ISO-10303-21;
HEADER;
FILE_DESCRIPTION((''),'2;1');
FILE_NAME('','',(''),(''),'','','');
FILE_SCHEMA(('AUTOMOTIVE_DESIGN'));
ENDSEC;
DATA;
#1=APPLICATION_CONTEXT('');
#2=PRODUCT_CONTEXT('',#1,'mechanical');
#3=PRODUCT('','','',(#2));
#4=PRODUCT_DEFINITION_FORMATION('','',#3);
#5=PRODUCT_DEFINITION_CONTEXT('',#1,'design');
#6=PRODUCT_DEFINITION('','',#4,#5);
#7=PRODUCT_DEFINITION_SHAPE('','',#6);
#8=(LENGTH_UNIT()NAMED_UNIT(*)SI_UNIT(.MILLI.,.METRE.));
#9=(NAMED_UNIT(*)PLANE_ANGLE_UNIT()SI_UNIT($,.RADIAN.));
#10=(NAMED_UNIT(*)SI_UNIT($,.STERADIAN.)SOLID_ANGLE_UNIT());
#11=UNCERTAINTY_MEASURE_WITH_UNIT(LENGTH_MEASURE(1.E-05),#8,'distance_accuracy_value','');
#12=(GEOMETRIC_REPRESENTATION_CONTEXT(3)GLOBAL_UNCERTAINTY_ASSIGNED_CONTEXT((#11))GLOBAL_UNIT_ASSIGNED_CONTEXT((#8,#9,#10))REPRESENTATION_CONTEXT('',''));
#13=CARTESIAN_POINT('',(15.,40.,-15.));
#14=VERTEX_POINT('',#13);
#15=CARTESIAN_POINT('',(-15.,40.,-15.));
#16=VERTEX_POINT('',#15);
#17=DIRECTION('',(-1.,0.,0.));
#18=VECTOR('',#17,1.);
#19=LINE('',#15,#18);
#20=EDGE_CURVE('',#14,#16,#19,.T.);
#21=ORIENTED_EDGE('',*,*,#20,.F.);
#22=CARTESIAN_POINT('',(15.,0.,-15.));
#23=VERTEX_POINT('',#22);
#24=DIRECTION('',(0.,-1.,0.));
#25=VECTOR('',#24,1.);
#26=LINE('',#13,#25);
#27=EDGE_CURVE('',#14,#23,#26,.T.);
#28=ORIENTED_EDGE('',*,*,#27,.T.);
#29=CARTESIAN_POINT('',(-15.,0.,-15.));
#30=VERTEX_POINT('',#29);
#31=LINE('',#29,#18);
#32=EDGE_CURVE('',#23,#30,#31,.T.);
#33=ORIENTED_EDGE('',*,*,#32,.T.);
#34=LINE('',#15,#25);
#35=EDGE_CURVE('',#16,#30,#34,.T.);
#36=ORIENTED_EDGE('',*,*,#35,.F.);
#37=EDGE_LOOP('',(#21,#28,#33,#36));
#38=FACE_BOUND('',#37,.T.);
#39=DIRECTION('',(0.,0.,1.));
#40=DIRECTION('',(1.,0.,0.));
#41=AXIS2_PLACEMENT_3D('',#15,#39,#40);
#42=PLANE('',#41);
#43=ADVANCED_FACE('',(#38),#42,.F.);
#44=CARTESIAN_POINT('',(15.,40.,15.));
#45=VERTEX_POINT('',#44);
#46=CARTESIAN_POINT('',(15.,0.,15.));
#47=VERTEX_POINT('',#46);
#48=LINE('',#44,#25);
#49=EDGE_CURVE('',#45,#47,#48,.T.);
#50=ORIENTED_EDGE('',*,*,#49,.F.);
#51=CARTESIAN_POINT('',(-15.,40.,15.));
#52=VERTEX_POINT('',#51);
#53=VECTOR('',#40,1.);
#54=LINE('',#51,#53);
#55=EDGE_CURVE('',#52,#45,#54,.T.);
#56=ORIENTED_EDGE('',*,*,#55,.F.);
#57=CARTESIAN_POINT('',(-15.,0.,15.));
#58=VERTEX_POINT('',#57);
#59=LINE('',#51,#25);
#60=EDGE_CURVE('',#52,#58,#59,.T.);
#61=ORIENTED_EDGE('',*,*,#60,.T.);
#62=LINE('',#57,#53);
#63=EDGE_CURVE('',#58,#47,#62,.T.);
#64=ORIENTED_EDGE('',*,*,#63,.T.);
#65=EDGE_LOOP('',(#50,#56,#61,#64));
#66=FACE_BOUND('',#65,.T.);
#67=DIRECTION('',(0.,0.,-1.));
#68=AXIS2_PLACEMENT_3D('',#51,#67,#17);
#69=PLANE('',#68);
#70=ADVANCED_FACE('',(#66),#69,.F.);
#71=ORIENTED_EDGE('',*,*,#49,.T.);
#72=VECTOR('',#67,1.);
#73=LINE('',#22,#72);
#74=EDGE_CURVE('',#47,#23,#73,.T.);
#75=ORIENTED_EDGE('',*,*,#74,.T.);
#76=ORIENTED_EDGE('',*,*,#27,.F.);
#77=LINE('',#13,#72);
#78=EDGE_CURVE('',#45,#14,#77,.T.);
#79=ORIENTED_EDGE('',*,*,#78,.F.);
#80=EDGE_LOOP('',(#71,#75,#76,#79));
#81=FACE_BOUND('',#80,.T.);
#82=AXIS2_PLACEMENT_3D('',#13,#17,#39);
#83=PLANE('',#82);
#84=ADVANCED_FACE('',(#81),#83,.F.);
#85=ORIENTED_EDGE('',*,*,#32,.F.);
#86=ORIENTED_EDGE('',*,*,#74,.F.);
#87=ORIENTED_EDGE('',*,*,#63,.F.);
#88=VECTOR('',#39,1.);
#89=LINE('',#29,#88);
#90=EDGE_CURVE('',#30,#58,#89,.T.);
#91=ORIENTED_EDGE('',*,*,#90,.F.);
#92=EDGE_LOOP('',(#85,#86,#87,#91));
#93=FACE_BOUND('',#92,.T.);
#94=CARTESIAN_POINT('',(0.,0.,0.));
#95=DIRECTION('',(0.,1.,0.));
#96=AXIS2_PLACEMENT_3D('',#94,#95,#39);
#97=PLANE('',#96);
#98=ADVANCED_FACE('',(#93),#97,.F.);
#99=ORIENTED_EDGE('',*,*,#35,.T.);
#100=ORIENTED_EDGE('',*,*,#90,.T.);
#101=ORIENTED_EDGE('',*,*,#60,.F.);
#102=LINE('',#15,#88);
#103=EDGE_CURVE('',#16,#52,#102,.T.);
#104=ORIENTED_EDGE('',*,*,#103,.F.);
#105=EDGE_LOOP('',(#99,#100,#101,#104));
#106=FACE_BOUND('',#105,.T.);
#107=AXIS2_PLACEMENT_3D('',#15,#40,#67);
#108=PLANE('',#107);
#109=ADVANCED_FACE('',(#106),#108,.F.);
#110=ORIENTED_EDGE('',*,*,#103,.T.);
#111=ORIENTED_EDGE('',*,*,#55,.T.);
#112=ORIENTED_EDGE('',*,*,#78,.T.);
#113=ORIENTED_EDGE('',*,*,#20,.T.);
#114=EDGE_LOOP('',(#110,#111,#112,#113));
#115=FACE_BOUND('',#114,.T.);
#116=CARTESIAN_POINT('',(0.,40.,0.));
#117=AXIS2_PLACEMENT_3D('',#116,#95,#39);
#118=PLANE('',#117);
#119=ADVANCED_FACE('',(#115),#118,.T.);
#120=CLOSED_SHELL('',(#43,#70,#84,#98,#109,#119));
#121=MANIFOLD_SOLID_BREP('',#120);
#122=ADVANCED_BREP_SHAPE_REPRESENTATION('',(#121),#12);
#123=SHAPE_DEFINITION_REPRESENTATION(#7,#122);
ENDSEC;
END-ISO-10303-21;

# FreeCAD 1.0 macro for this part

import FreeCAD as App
import Part
import Sketcher
from FreeCAD import Vector
Q = App.Units.Quantity


def add_polygon(sketch, points):
    """Adds a closed chain of lines whose ends are joined by coincident constraints."""
    first, n = sketch.GeometryCount, len(points)
    for a, b in zip(points, points[1:] + points[:1]):
        sketch.addGeometry(Part.LineSegment(App.Vector(*a, 0), App.Vector(*b, 0)), False)
    for i in range(n):
        sketch.addConstraint(Sketcher.Constraint("Coincident", first + i, 2, first + (i + 1) % n, 1))

doc = App.newDocument("Part")
body = doc.addObject("PartDesign::Body", "Body")

# Sketch on XZ plane
sketch1 = doc.addObject("Sketcher::SketchObject", "Sketch")
body.addObject(sketch1)
sketch1.AttachmentSupport = (doc.XZ_Plane, [""])
sketch1.MapMode = "FlatFace"
add_polygon(sketch1, [(-15, -15), (-15, 15), (15, 15), (15, -15)])  # lines 0-3
sketch1.addConstraint([
    Sketcher.Constraint("Vertical", 0),
    Sketcher.Constraint("Horizontal", 1),
    Sketcher.Constraint("Vertical", 2),
    Sketcher.Constraint("Horizontal", 3),
    Sketcher.Constraint("Symmetric", 0, 2, 2, 2, -1, 1),
    Sketcher.Constraint("Equal", 3, 0),
    Sketcher.Constraint("DistanceX", 1, 1, 1, 2, Q("30 mm")),
])
pad1 = doc.addObject("PartDesign::Pad", "Pad")
body.addObject(pad1)
pad1.Profile = sketch1
pad1.Length = 40
pad1.Reversed = True

doc.recompute()
